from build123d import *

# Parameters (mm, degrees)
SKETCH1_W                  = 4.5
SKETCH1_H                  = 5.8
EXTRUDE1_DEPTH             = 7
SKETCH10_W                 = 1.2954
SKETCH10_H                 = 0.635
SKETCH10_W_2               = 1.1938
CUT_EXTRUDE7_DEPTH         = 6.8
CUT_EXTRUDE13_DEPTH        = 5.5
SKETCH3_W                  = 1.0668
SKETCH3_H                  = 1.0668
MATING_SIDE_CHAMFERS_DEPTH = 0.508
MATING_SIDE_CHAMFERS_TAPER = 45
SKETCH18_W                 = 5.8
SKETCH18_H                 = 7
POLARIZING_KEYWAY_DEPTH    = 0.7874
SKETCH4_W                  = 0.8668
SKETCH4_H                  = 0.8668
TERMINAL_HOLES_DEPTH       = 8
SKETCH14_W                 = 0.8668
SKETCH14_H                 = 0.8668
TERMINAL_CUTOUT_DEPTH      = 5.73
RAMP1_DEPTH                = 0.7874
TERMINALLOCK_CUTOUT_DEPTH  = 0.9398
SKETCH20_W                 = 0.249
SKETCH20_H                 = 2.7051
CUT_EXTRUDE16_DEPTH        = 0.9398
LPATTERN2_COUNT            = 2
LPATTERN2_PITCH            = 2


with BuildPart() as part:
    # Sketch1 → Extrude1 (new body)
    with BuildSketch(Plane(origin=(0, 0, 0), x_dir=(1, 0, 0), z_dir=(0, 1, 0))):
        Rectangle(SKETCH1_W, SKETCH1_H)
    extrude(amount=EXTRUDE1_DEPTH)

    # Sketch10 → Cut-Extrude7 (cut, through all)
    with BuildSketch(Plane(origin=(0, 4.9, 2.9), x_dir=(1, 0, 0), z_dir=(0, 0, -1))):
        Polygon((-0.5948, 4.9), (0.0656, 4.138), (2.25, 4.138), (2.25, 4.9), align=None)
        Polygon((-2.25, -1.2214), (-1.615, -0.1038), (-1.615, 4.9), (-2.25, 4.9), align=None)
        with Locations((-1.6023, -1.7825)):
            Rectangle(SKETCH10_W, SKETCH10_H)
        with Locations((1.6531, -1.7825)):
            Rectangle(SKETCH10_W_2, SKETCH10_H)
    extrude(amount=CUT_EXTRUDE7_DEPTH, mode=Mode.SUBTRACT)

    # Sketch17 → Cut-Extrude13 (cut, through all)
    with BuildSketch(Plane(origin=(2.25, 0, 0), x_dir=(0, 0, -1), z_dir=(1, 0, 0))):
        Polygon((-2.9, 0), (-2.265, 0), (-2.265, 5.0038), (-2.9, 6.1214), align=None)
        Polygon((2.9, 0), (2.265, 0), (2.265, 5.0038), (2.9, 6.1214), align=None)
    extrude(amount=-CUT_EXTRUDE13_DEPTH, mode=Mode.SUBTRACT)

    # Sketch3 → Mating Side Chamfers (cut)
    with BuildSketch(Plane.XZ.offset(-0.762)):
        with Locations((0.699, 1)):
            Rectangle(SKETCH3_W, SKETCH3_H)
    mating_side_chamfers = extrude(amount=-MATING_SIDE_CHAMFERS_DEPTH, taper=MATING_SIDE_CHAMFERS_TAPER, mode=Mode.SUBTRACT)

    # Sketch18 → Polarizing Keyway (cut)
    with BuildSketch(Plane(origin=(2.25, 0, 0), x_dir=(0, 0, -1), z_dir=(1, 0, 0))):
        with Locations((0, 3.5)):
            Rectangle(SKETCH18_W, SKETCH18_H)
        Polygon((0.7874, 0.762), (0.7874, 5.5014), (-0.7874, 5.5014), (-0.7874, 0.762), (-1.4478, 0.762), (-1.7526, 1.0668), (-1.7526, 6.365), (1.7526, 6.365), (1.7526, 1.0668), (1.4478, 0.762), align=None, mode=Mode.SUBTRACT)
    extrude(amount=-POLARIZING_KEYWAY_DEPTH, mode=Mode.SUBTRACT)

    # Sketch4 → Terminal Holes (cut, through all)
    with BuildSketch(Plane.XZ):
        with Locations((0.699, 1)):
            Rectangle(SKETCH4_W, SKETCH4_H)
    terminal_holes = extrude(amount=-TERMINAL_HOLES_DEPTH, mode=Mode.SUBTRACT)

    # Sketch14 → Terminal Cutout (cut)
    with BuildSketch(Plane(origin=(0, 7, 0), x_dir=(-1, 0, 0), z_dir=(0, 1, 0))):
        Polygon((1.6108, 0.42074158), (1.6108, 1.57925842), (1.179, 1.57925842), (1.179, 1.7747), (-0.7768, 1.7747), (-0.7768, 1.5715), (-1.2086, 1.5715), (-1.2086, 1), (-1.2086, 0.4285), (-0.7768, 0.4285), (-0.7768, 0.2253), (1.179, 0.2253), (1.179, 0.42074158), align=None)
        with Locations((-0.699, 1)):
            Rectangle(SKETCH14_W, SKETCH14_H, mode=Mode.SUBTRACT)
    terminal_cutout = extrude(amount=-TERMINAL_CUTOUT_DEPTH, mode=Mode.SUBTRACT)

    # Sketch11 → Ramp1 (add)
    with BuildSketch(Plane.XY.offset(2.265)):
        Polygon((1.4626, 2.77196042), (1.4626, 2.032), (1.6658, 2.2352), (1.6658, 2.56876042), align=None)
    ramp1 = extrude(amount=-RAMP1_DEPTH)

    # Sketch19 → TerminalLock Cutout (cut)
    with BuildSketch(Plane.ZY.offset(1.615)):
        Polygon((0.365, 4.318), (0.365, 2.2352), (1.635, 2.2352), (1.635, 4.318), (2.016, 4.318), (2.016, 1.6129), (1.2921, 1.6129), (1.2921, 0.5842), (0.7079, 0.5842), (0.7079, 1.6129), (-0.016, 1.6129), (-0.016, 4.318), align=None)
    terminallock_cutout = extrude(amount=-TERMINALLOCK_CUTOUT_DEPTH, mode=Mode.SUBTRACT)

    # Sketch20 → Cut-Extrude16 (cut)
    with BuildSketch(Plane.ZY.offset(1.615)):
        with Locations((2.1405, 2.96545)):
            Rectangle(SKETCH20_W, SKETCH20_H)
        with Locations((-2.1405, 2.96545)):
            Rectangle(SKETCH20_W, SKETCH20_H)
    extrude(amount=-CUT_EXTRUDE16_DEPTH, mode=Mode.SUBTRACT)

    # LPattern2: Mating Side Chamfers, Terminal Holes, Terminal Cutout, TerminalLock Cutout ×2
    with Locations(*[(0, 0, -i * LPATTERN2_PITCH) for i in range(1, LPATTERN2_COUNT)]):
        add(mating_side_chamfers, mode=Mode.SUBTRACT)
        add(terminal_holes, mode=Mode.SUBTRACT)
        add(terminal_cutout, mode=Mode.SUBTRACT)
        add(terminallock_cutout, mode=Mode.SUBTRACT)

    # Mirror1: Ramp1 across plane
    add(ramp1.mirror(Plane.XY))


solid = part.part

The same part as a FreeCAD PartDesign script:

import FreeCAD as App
import Part
import Sketcher

V = App.Vector
Q = App.Units.Quantity


def add_polygon(sketch, points):
    """Adds a closed chain of lines whose ends are joined by coincident constraints."""
    first, n = sketch.GeometryCount, len(points)
    for a, b in zip(points, points[1:] + points[:1]):
        sketch.addGeometry(Part.LineSegment(App.Vector(*a, 0), App.Vector(*b, 0)), False)
    for i in range(n):
        sketch.addConstraint(Sketcher.Constraint("Coincident", first + i, 2, first + (i + 1) % n, 1))

doc = App.newDocument("Part")
body = doc.addObject("PartDesign::Body", "Body")

# Sketch on XZ plane
sketch1 = body.newObject("Sketcher::SketchObject", "Sketch")
sketch1.AttachmentSupport = (doc.getObject("XZ_Plane"), [""])
sketch1.MapMode = "FlatFace"
add_polygon(sketch1, [(-2.25, -2.9), (-2.25, 2.9), (2.25, 2.9), (2.25, -2.9)])  # lines 0-3
sketch1.addConstraint([
    Sketcher.Constraint("Vertical", 0),
    Sketcher.Constraint("Horizontal", 1),
    Sketcher.Constraint("Vertical", 2),
    Sketcher.Constraint("Horizontal", 3),
    Sketcher.Constraint("Symmetric", 0, 2, 2, 2, -1, 1),
    Sketcher.Constraint("DistanceX", 1, 1, 1, 2, Q("4.5 mm")),
    Sketcher.Constraint("DistanceY", 0, 1, 0, 2, Q("5.8 mm")),
])
pad1 = body.newObject("PartDesign::Pad", "Pad")
pad1.Profile = sketch1
pad1.Length = 7
pad1.Reversed = True

# Sketch on XY plane
sketch2 = body.newObject("Sketcher::SketchObject", "Sketch001")
sketch2.AttachmentSupport = (doc.getObject("XY_Plane"), [""])
sketch2.MapMode = "FlatFace"
sketch2.AttachmentOffset = App.Placement(V(0, 0, 2.9), App.Rotation())
add_polygon(sketch2, [(-0.5948, 0), (0.0656, 0.762), (2.25, 0.762), (2.25, 0)])  # lines 0-3
add_polygon(sketch2, [(-2.25, 6.1214), (-1.615, 5.0038), (-1.615, 0), (-2.25, 0)])  # lines 4-7
add_polygon(sketch2, [(-2.25, 6.365), (-2.25, 7), (-0.9546, 7), (-0.9546, 6.365)])  # lines 8-11
add_polygon(sketch2, [(1.0562, 6.365), (1.0562, 7), (2.25, 7), (2.25, 6.365)])  # lines 12-15
sketch2.addConstraint([
    Sketcher.Constraint("Horizontal", 1),
    Sketcher.Constraint("Vertical", 2),
    Sketcher.Constraint("Horizontal", 3),
    Sketcher.Constraint("Vertical", 5),
    Sketcher.Constraint("Horizontal", 6),
    Sketcher.Constraint("Vertical", 7),
    Sketcher.Constraint("Vertical", 8),
    Sketcher.Constraint("Horizontal", 9),
    Sketcher.Constraint("Vertical", 10),
    Sketcher.Constraint("Horizontal", 11),
    Sketcher.Constraint("Vertical", 12),
    Sketcher.Constraint("Horizontal", 13),
    Sketcher.Constraint("Vertical", 14),
    Sketcher.Constraint("Horizontal", 15),
    Sketcher.Constraint("Symmetric", 2, 2, 6, 2, -1, 1),
    Sketcher.Constraint("Symmetric", 8, 2, 13, 2, -2),
    Sketcher.Constraint("PointOnObject", 2, 2, -1),
    Sketcher.Constraint("Horizontal", 11, 2, 14, 2),
    Sketcher.Constraint("Vertical", 7, 2, 8, 2),
    Sketcher.Constraint("Equal", 6, 8),
    Sketcher.Constraint("DistanceY", 2, 2, 2, 1, Q("0.03 in")),
    Sketcher.Constraint("DistanceX", 1, 1, 1, 2, Q("0.086 in")),
    Sketcher.Constraint("DistanceX", 3, 2, 3, 1, Q("0.112 in")),
    Sketcher.Constraint("DistanceX", 6, 2, 6, 1, Q("0.025 in")),
    Sketcher.Constraint("DistanceX", 9, 1, 9, 2, Q("0.051 in")),
    Sketcher.Constraint("DistanceX", 13, 1, 13, 2, Q("0.047 in")),
    Sketcher.Constraint("DistanceY", 5, 2, 5, 1, Q("0.197 in")),
    Sketcher.Constraint("DistanceY", 7, 1, 7, 2, Q("0.241 in")),
    Sketcher.Constraint("DistanceX", -1, 1, 0, 2, Q("0.0656 mm")),
    Sketcher.Constraint("DistanceY", -1, 1, 8, 2, Q("7 mm")),
])
pocket1 = body.newObject("PartDesign::Pocket", "Pocket")
pocket1.Profile = sketch2
pocket1.Type = "ThroughAll"

# Sketch on YZ plane
sketch3 = body.newObject("Sketcher::SketchObject", "Sketch002")
sketch3.AttachmentSupport = (doc.getObject("YZ_Plane"), [""])
sketch3.MapMode = "FlatFace"
sketch3.AttachmentOffset = App.Placement(V(0, 0, 2.25), App.Rotation())
add_polygon(sketch3, [(0, 2.9), (0, 2.265), (5.0038, 2.265), (6.1214, 2.9)])  # lines 0-3
add_polygon(sketch3, [(0, -2.265), (0, -2.9), (6.1214, -2.9), (5.0038, -2.265)])  # lines 4-7
sketch3.addConstraint([
    Sketcher.Constraint("Vertical", 0),
    Sketcher.Constraint("Horizontal", 1),
    Sketcher.Constraint("Horizontal", 3),
    Sketcher.Constraint("Vertical", 4),
    Sketcher.Constraint("Horizontal", 5),
    Sketcher.Constraint("Horizontal", 7),
    Sketcher.Constraint("Symmetric", 3, 2, 4, 2, -1, 1),
    Sketcher.Constraint("Symmetric", 1, 2, 6, 2, -1),
    Sketcher.Constraint("PointOnObject", 0, 2, -2),
    Sketcher.Constraint("Vertical", 2, 2, 5, 2),
    Sketcher.Constraint("DistanceX", 1, 1, 1, 2, Q("0.197 in")),
    Sketcher.Constraint("DistanceX", 3, 2, 3, 1, Q("0.241 in")),
    Sketcher.Constraint("DistanceY", 0, 2, 0, 1, Q("0.025 in")),
    Sketcher.Constraint("DistanceY", -1, 1, 0, 2, Q("2.265 mm")),
])
pocket2 = body.newObject("PartDesign::Pocket", "Pocket001")
pocket2.Profile = sketch3
pocket2.Type = "ThroughAll"

# Sketch on XZ plane
sketch4 = body.newObject("Sketcher::SketchObject", "Sketch003")
sketch4.AttachmentSupport = (doc.getObject("XZ_Plane"), [""])
sketch4.MapMode = "FlatFace"
sketch4.AttachmentOffset = App.Placement(V(0, 0, -0.03 * 25.4), App.Rotation())
add_polygon(sketch4, [(0.1656, 1.5334), (0.1656, 0.4666), (1.2324, 0.4666), (1.2324, 1.5334)])  # lines 0-3
sketch4.addConstraint([
    Sketcher.Constraint("Vertical", 0),
    Sketcher.Constraint("Horizontal", 1),
    Sketcher.Constraint("Vertical", 2),
    Sketcher.Constraint("Horizontal", 3),
    Sketcher.Constraint("Equal", 3, 0),
    Sketcher.Constraint("DistanceX", 1, 1, 1, 2, Q("0.042 in")),
    Sketcher.Constraint("DistanceX", -1, 1, 0, 2, Q("0.1656 mm")),
    Sketcher.Constraint("DistanceY", -1, 1, 0, 2, Q("0.4666 mm")),
])
pocket3 = body.newObject("PartDesign::Pocket", "Pocket002")
pocket3.Profile = sketch4
pocket3.Length = Q("0.02 in")
pocket3.TaperAngle = -45

# Sketch on YZ plane
sketch5 = body.newObject("Sketcher::SketchObject", "Sketch004")
sketch5.AttachmentSupport = (doc.getObject("YZ_Plane"), [""])
sketch5.MapMode = "FlatFace"
sketch5.AttachmentOffset = App.Placement(V(0, 0, 2.25), App.Rotation())
add_polygon(sketch5, [(7, 2.9), (0, 2.9), (0, -2.9), (7, -2.9)])  # lines 0-3
add_polygon(sketch5, [(0.762, -1.4478), (0.762, -0.7874), (5.5014, -0.7874), (5.5014, 0.7874), (0.762, 0.7874), (0.762, 1.4478), (1.0668, 1.7526), (6.365, 1.7526), (6.365, -1.7526), (1.0668, -1.7526)])  # lines 4-13
sketch5.addConstraint([
    Sketcher.Constraint("Horizontal", 0),
    Sketcher.Constraint("Vertical", 1),
    Sketcher.Constraint("Horizontal", 2),
    Sketcher.Constraint("Vertical", 3),
    Sketcher.Constraint("Vertical", 4),
    Sketcher.Constraint("Horizontal", 5),
    Sketcher.Constraint("Vertical", 6),
    Sketcher.Constraint("Horizontal", 7),
    Sketcher.Constraint("Vertical", 8),
    Sketcher.Constraint("Horizontal", 10),
    Sketcher.Constraint("Vertical", 11),
    Sketcher.Constraint("Horizontal", 12),
    Sketcher.Constraint("Symmetric", 0, 2, 1, 2, -1, 1),
    Sketcher.Constraint("Symmetric", 4, 2, 7, 2, -1),
    Sketcher.Constraint("Symmetric", 9, 2, 12, 2, -1),
    Sketcher.Constraint("Perpendicular", 9, 13),
    Sketcher.Constraint("Equal", 4, 8),
    Sketcher.Constraint("DistanceY", 4, 2, 9, 2, Q("0.1 in")),
    Sketcher.Constraint("DistanceY", 4, 1, 4, 2, Q("0.026 in")),
    Sketcher.Constraint("DistanceY", 6, 1, 6, 2, Q("0.062 in")),
    Sketcher.Constraint("DistanceX", -1, 1, 4, 2, Q("0.03 in")),
    Sketcher.Constraint("DistanceX", 5, 2, 2, 2, Q("0.059 in")),
    Sketcher.Constraint("DistanceX", 6, 2, 10, 2, Q("0.034 in")),
    Sketcher.Constraint("DistanceX", 0, 2, 0, 1, Q("7 mm")),
    Sketcher.Constraint("DistanceY", 1, 2, 1, 1, Q("5.8 mm")),
])
pocket4 = body.newObject("PartDesign::Pocket", "Pocket003")
pocket4.Profile = sketch5
pocket4.Length = Q("0.031 in")

# Sketch on XZ plane
sketch6 = body.newObject("Sketcher::SketchObject", "Sketch005")
sketch6.AttachmentSupport = (doc.getObject("XZ_Plane"), [""])
sketch6.MapMode = "FlatFace"
add_polygon(sketch6, [(0.2656, 1.4334), (0.2656, 0.5666), (1.1324, 0.5666), (1.1324, 1.4334)])  # lines 0-3
sketch6.addConstraint([
    Sketcher.Constraint("Vertical", 0),
    Sketcher.Constraint("Horizontal", 1),
    Sketcher.Constraint("Vertical", 2),
    Sketcher.Constraint("Horizontal", 3),
    Sketcher.Constraint("Equal", 3, 0),
    Sketcher.Constraint("DistanceX", 1, 1, 1, 2, Q("0.8668 mm")),
    Sketcher.Constraint("DistanceX", -1, 1, 0, 2, Q("0.2656 mm")),
    Sketcher.Constraint("DistanceY", -1, 1, 0, 2, Q("0.5666 mm")),
])
pocket5 = body.newObject("PartDesign::Pocket", "Pocket004")
pocket5.Profile = sketch6
pocket5.Type = "ThroughAll"

# Sketch on XZ plane
sketch7 = body.newObject("Sketcher::SketchObject", "Sketch006")
sketch7.AttachmentSupport = (doc.getObject("XZ_Plane"), [""])
sketch7.MapMode = "FlatFace"
sketch7.AttachmentOffset = App.Placement(V(0, 0, -7), App.Rotation())
add_polygon(sketch7, [(-1.6108, 0.420742), (-1.6108, 1.579258), (-1.179, 1.579258), (-1.179, 1.7747), (0.7768, 1.7747), (0.7768, 1.5715), (1.2086, 1.5715), (1.2086, 0.4285), (0.7768, 0.4285), (0.7768, 0.2253), (-1.179, 0.2253), (-1.179, 0.420742)])  # lines 0-11
add_polygon(sketch7, [(0.2656, 0.5666), (1.1324, 0.5666), (1.1324, 1.4334), (0.2656, 1.4334)])  # lines 12-15
sketch7.addConstraint([
    Sketcher.Constraint("Vertical", 0),
    Sketcher.Constraint("Horizontal", 1),
    Sketcher.Constraint("Vertical", 2),
    Sketcher.Constraint("Horizontal", 3),
    Sketcher.Constraint("Vertical", 4),
    Sketcher.Constraint("Horizontal", 5),
    Sketcher.Constraint("Vertical", 6),
    Sketcher.Constraint("Horizontal", 7),
    Sketcher.Constraint("Vertical", 8),
    Sketcher.Constraint("Horizontal", 9),
    Sketcher.Constraint("Vertical", 10),
    Sketcher.Constraint("Horizontal", 11),
    Sketcher.Constraint("Horizontal", 12),
    Sketcher.Constraint("Vertical", 13),
    Sketcher.Constraint("Horizontal", 14),
    Sketcher.Constraint("Vertical", 15),
    Sketcher.Constraint("Vertical", 4, 2, 7, 2),
    Sketcher.Constraint("Vertical", 2, 2, 9, 2),
    Sketcher.Constraint("Equal", 1, 5),
    Sketcher.Constraint("Equal", 4, 8),
    Sketcher.Constraint("Equal", 2, 10),
    Sketcher.Constraint("Equal", 14, 13),
    Sketcher.Constraint("DistanceX", 1, 1, 1, 2, Q("0.017 in")),
    Sketcher.Constraint("DistanceX", 3, 1, 3, 2, Q("0.077 in")),
    Sketcher.Constraint("DistanceY", 4, 2, 4, 1, Q("0.008 in")),
    Sketcher.Constraint("DistanceY", 6, 2, 6, 1, Q("0.045 in")),
    Sketcher.Constraint("DistanceX", 12, 2, 6, 2, Q("0.003 in")),
    Sketcher.Constraint("DistanceX", 12, 1, 12, 2, Q("0.8668 mm")),
    Sketcher.Constraint("DistanceY", 2, 1, 2, 2, Q("0.195442 mm")),
    Sketcher.Constraint("DistanceX", 0, 2, -1, 1, Q("1.6108 mm")),
    Sketcher.Constraint("DistanceY", -1, 1, 2, 2, Q("1.7747 mm")),
    Sketcher.Constraint("DistanceY", -1, 1, 12, 2, Q("0.5666 mm")),
])
pocket6 = body.newObject("PartDesign::Pocket", "Pocket005")
pocket6.Profile = sketch7
pocket6.Length = 5.73
pocket6.Reversed = True

# Sketch on XY plane
sketch8 = body.newObject("Sketcher::SketchObject", "Sketch007")
sketch8.AttachmentSupport = (doc.getObject("XY_Plane"), [""])
sketch8.MapMode = "FlatFace"
sketch8.AttachmentOffset = App.Placement(V(0, 0, 2.265), App.Rotation())
add_polygon(sketch8, [(1.4626, 2.77196), (1.4626, 2.032), (1.6658, 2.2352), (1.6658, 2.56876)])  # lines 0-3
sketch8.addConstraint([
    Sketcher.Constraint("Vertical", 0),
    Sketcher.Constraint("Vertical", 2),
    Sketcher.Constraint("Perpendicular", 1, 3),
    Sketcher.Constraint("Equal", 1, 3),
    Sketcher.Constraint("DistanceY", -1, 1, 0, 2, Q("0.08 in")),
    Sketcher.Constraint("DistanceY", -1, 1, 1, 2, Q("0.088 in")),
    Sketcher.Constraint("DistanceY", 0, 2, 0, 1, Q("0.73996 mm")),
    Sketcher.Constraint("DistanceX", -1, 1, 0, 2, Q("1.4626 mm")),
])
pad2 = body.newObject("PartDesign::Pad", "Pad001")
pad2.Profile = sketch8
pad2.Length = Q("0.031 in")
pad2.Reversed = True

# Sketch on YZ plane
sketch9 = body.newObject("Sketcher::SketchObject", "Sketch008")
sketch9.AttachmentSupport = (doc.getObject("YZ_Plane"), [""])
sketch9.MapMode = "FlatFace"
sketch9.AttachmentOffset = App.Placement(V(0, 0, -1.615), App.Rotation())
add_polygon(sketch9, [(2.2352, 0.365), (4.318, 0.365), (4.318, -0.016), (1.6129, -0.016), (1.6129, 0.7079), (0.5842, 0.7079), (0.5842, 1.2921), (1.6129, 1.2921), (1.6129, 2.016), (4.318, 2.016), (4.318, 1.635), (2.2352, 1.635)])  # lines 0-11
sketch9.addConstraint([
    Sketcher.Constraint("Horizontal", 0),
    Sketcher.Constraint("Vertical", 1),
    Sketcher.Constraint("Horizontal", 2),
    Sketcher.Constraint("Vertical", 3),
    Sketcher.Constraint("Horizontal", 4),
    Sketcher.Constraint("Vertical", 5),
    Sketcher.Constraint("Horizontal", 6),
    Sketcher.Constraint("Vertical", 7),
    Sketcher.Constraint("Horizontal", 8),
    Sketcher.Constraint("Vertical", 9),
    Sketcher.Constraint("Horizontal", 10),
    Sketcher.Constraint("Vertical", 11),
    Sketcher.Constraint("Vertical", 3, 2, 6, 2),
    Sketcher.Constraint("Vertical", 1, 2, 8, 2),
    Sketcher.Constraint("Equal", 3, 7),
    Sketcher.Constraint("Equal", 1, 9),
    Sketcher.Constraint("DistanceY", 11, 2, 11, 1, Q("0.05 in")),
    Sketcher.Constraint("DistanceX", 0, 1, 0, 2, Q("0.082 in")),
    Sketcher.Constraint("DistanceY", 1, 2, 1, 1, Q("0.015 in")),
    Sketcher.Constraint("DistanceY", 5, 1, 5, 2, Q("0.023 in")),
    Sketcher.Constraint("DistanceX", -1, 1, 0, 2, Q("0.17 in")),
    Sketcher.Constraint("DistanceX", 2, 2, 2, 1, Q("0.1065 in")),
    Sketcher.Constraint("DistanceX", 4, 2, 4, 1, Q("0.0405 in")),
    Sketcher.Constraint("DistanceY", -1, 1, 0, 2, Q("0.365 mm")),
])
pocket7 = body.newObject("PartDesign::Pocket", "Pocket006")
pocket7.Profile = sketch9
pocket7.Length = Q("0.037 in")
pocket7.Reversed = True

# Sketch on YZ plane
sketch10 = body.newObject("Sketcher::SketchObject", "Sketch009")
sketch10.AttachmentSupport = (doc.getObject("YZ_Plane"), [""])
sketch10.MapMode = "FlatFace"
sketch10.AttachmentOffset = App.Placement(V(0, 0, -1.615), App.Rotation())
add_polygon(sketch10, [(4.318, 2.016), (1.6129, 2.016), (1.6129, 2.265), (4.318, 2.265)])  # lines 0-3
add_polygon(sketch10, [(4.318, -2.265), (1.6129, -2.265), (1.6129, -2.016), (4.318, -2.016)])  # lines 4-7
sketch10.addConstraint([
    Sketcher.Constraint("Horizontal", 0),
    Sketcher.Constraint("Vertical", 1),
    Sketcher.Constraint("Horizontal", 2),
    Sketcher.Constraint("Vertical", 3),
    Sketcher.Constraint("Horizontal", 4),
    Sketcher.Constraint("Vertical", 5),
    Sketcher.Constraint("Horizontal", 6),
    Sketcher.Constraint("Vertical", 7),
    Sketcher.Constraint("Symmetric", 1, 2, 4, 2, -1),
    Sketcher.Constraint("Symmetric", 3, 2, 6, 2, -1),
    Sketcher.Constraint("DistanceX", -1, 1, 2, 2, Q("0.17 in")),
    Sketcher.Constraint("DistanceX", 0, 2, 0, 1, Q("0.1065 in")),
    Sketcher.Constraint("DistanceY", 1, 1, 1, 2, Q("0.249 mm")),
    Sketcher.Constraint("DistanceY", -1, 1, 0, 2, Q("2.016 mm")),
])
pocket8 = body.newObject("PartDesign::Pocket", "Pocket007")
pocket8.Profile = sketch10
pocket8.Length = Q("0.037 in")
pocket8.Reversed = True
doc.recompute()

linearpattern = body.newObject("PartDesign::LinearPattern", "LinearPattern")
linearpattern.Originals = [pocket3, pocket5, pocket6, pocket7]
linearpattern.Direction = (doc.getObject("Z_Axis"), [""])
linearpattern.Mode = "offset"
linearpattern.Offset = 2
linearpattern.Occurrences = 2
linearpattern.Reversed = True
body.Tip = linearpattern
doc.recompute()

mirrored = body.newObject("PartDesign::Mirrored", "Mirrored")
mirrored.Originals = [pad2]
mirrored.MirrorPlane = (doc.getObject("XY_Plane"), [""])
body.Tip = mirrored

doc.recompute()
